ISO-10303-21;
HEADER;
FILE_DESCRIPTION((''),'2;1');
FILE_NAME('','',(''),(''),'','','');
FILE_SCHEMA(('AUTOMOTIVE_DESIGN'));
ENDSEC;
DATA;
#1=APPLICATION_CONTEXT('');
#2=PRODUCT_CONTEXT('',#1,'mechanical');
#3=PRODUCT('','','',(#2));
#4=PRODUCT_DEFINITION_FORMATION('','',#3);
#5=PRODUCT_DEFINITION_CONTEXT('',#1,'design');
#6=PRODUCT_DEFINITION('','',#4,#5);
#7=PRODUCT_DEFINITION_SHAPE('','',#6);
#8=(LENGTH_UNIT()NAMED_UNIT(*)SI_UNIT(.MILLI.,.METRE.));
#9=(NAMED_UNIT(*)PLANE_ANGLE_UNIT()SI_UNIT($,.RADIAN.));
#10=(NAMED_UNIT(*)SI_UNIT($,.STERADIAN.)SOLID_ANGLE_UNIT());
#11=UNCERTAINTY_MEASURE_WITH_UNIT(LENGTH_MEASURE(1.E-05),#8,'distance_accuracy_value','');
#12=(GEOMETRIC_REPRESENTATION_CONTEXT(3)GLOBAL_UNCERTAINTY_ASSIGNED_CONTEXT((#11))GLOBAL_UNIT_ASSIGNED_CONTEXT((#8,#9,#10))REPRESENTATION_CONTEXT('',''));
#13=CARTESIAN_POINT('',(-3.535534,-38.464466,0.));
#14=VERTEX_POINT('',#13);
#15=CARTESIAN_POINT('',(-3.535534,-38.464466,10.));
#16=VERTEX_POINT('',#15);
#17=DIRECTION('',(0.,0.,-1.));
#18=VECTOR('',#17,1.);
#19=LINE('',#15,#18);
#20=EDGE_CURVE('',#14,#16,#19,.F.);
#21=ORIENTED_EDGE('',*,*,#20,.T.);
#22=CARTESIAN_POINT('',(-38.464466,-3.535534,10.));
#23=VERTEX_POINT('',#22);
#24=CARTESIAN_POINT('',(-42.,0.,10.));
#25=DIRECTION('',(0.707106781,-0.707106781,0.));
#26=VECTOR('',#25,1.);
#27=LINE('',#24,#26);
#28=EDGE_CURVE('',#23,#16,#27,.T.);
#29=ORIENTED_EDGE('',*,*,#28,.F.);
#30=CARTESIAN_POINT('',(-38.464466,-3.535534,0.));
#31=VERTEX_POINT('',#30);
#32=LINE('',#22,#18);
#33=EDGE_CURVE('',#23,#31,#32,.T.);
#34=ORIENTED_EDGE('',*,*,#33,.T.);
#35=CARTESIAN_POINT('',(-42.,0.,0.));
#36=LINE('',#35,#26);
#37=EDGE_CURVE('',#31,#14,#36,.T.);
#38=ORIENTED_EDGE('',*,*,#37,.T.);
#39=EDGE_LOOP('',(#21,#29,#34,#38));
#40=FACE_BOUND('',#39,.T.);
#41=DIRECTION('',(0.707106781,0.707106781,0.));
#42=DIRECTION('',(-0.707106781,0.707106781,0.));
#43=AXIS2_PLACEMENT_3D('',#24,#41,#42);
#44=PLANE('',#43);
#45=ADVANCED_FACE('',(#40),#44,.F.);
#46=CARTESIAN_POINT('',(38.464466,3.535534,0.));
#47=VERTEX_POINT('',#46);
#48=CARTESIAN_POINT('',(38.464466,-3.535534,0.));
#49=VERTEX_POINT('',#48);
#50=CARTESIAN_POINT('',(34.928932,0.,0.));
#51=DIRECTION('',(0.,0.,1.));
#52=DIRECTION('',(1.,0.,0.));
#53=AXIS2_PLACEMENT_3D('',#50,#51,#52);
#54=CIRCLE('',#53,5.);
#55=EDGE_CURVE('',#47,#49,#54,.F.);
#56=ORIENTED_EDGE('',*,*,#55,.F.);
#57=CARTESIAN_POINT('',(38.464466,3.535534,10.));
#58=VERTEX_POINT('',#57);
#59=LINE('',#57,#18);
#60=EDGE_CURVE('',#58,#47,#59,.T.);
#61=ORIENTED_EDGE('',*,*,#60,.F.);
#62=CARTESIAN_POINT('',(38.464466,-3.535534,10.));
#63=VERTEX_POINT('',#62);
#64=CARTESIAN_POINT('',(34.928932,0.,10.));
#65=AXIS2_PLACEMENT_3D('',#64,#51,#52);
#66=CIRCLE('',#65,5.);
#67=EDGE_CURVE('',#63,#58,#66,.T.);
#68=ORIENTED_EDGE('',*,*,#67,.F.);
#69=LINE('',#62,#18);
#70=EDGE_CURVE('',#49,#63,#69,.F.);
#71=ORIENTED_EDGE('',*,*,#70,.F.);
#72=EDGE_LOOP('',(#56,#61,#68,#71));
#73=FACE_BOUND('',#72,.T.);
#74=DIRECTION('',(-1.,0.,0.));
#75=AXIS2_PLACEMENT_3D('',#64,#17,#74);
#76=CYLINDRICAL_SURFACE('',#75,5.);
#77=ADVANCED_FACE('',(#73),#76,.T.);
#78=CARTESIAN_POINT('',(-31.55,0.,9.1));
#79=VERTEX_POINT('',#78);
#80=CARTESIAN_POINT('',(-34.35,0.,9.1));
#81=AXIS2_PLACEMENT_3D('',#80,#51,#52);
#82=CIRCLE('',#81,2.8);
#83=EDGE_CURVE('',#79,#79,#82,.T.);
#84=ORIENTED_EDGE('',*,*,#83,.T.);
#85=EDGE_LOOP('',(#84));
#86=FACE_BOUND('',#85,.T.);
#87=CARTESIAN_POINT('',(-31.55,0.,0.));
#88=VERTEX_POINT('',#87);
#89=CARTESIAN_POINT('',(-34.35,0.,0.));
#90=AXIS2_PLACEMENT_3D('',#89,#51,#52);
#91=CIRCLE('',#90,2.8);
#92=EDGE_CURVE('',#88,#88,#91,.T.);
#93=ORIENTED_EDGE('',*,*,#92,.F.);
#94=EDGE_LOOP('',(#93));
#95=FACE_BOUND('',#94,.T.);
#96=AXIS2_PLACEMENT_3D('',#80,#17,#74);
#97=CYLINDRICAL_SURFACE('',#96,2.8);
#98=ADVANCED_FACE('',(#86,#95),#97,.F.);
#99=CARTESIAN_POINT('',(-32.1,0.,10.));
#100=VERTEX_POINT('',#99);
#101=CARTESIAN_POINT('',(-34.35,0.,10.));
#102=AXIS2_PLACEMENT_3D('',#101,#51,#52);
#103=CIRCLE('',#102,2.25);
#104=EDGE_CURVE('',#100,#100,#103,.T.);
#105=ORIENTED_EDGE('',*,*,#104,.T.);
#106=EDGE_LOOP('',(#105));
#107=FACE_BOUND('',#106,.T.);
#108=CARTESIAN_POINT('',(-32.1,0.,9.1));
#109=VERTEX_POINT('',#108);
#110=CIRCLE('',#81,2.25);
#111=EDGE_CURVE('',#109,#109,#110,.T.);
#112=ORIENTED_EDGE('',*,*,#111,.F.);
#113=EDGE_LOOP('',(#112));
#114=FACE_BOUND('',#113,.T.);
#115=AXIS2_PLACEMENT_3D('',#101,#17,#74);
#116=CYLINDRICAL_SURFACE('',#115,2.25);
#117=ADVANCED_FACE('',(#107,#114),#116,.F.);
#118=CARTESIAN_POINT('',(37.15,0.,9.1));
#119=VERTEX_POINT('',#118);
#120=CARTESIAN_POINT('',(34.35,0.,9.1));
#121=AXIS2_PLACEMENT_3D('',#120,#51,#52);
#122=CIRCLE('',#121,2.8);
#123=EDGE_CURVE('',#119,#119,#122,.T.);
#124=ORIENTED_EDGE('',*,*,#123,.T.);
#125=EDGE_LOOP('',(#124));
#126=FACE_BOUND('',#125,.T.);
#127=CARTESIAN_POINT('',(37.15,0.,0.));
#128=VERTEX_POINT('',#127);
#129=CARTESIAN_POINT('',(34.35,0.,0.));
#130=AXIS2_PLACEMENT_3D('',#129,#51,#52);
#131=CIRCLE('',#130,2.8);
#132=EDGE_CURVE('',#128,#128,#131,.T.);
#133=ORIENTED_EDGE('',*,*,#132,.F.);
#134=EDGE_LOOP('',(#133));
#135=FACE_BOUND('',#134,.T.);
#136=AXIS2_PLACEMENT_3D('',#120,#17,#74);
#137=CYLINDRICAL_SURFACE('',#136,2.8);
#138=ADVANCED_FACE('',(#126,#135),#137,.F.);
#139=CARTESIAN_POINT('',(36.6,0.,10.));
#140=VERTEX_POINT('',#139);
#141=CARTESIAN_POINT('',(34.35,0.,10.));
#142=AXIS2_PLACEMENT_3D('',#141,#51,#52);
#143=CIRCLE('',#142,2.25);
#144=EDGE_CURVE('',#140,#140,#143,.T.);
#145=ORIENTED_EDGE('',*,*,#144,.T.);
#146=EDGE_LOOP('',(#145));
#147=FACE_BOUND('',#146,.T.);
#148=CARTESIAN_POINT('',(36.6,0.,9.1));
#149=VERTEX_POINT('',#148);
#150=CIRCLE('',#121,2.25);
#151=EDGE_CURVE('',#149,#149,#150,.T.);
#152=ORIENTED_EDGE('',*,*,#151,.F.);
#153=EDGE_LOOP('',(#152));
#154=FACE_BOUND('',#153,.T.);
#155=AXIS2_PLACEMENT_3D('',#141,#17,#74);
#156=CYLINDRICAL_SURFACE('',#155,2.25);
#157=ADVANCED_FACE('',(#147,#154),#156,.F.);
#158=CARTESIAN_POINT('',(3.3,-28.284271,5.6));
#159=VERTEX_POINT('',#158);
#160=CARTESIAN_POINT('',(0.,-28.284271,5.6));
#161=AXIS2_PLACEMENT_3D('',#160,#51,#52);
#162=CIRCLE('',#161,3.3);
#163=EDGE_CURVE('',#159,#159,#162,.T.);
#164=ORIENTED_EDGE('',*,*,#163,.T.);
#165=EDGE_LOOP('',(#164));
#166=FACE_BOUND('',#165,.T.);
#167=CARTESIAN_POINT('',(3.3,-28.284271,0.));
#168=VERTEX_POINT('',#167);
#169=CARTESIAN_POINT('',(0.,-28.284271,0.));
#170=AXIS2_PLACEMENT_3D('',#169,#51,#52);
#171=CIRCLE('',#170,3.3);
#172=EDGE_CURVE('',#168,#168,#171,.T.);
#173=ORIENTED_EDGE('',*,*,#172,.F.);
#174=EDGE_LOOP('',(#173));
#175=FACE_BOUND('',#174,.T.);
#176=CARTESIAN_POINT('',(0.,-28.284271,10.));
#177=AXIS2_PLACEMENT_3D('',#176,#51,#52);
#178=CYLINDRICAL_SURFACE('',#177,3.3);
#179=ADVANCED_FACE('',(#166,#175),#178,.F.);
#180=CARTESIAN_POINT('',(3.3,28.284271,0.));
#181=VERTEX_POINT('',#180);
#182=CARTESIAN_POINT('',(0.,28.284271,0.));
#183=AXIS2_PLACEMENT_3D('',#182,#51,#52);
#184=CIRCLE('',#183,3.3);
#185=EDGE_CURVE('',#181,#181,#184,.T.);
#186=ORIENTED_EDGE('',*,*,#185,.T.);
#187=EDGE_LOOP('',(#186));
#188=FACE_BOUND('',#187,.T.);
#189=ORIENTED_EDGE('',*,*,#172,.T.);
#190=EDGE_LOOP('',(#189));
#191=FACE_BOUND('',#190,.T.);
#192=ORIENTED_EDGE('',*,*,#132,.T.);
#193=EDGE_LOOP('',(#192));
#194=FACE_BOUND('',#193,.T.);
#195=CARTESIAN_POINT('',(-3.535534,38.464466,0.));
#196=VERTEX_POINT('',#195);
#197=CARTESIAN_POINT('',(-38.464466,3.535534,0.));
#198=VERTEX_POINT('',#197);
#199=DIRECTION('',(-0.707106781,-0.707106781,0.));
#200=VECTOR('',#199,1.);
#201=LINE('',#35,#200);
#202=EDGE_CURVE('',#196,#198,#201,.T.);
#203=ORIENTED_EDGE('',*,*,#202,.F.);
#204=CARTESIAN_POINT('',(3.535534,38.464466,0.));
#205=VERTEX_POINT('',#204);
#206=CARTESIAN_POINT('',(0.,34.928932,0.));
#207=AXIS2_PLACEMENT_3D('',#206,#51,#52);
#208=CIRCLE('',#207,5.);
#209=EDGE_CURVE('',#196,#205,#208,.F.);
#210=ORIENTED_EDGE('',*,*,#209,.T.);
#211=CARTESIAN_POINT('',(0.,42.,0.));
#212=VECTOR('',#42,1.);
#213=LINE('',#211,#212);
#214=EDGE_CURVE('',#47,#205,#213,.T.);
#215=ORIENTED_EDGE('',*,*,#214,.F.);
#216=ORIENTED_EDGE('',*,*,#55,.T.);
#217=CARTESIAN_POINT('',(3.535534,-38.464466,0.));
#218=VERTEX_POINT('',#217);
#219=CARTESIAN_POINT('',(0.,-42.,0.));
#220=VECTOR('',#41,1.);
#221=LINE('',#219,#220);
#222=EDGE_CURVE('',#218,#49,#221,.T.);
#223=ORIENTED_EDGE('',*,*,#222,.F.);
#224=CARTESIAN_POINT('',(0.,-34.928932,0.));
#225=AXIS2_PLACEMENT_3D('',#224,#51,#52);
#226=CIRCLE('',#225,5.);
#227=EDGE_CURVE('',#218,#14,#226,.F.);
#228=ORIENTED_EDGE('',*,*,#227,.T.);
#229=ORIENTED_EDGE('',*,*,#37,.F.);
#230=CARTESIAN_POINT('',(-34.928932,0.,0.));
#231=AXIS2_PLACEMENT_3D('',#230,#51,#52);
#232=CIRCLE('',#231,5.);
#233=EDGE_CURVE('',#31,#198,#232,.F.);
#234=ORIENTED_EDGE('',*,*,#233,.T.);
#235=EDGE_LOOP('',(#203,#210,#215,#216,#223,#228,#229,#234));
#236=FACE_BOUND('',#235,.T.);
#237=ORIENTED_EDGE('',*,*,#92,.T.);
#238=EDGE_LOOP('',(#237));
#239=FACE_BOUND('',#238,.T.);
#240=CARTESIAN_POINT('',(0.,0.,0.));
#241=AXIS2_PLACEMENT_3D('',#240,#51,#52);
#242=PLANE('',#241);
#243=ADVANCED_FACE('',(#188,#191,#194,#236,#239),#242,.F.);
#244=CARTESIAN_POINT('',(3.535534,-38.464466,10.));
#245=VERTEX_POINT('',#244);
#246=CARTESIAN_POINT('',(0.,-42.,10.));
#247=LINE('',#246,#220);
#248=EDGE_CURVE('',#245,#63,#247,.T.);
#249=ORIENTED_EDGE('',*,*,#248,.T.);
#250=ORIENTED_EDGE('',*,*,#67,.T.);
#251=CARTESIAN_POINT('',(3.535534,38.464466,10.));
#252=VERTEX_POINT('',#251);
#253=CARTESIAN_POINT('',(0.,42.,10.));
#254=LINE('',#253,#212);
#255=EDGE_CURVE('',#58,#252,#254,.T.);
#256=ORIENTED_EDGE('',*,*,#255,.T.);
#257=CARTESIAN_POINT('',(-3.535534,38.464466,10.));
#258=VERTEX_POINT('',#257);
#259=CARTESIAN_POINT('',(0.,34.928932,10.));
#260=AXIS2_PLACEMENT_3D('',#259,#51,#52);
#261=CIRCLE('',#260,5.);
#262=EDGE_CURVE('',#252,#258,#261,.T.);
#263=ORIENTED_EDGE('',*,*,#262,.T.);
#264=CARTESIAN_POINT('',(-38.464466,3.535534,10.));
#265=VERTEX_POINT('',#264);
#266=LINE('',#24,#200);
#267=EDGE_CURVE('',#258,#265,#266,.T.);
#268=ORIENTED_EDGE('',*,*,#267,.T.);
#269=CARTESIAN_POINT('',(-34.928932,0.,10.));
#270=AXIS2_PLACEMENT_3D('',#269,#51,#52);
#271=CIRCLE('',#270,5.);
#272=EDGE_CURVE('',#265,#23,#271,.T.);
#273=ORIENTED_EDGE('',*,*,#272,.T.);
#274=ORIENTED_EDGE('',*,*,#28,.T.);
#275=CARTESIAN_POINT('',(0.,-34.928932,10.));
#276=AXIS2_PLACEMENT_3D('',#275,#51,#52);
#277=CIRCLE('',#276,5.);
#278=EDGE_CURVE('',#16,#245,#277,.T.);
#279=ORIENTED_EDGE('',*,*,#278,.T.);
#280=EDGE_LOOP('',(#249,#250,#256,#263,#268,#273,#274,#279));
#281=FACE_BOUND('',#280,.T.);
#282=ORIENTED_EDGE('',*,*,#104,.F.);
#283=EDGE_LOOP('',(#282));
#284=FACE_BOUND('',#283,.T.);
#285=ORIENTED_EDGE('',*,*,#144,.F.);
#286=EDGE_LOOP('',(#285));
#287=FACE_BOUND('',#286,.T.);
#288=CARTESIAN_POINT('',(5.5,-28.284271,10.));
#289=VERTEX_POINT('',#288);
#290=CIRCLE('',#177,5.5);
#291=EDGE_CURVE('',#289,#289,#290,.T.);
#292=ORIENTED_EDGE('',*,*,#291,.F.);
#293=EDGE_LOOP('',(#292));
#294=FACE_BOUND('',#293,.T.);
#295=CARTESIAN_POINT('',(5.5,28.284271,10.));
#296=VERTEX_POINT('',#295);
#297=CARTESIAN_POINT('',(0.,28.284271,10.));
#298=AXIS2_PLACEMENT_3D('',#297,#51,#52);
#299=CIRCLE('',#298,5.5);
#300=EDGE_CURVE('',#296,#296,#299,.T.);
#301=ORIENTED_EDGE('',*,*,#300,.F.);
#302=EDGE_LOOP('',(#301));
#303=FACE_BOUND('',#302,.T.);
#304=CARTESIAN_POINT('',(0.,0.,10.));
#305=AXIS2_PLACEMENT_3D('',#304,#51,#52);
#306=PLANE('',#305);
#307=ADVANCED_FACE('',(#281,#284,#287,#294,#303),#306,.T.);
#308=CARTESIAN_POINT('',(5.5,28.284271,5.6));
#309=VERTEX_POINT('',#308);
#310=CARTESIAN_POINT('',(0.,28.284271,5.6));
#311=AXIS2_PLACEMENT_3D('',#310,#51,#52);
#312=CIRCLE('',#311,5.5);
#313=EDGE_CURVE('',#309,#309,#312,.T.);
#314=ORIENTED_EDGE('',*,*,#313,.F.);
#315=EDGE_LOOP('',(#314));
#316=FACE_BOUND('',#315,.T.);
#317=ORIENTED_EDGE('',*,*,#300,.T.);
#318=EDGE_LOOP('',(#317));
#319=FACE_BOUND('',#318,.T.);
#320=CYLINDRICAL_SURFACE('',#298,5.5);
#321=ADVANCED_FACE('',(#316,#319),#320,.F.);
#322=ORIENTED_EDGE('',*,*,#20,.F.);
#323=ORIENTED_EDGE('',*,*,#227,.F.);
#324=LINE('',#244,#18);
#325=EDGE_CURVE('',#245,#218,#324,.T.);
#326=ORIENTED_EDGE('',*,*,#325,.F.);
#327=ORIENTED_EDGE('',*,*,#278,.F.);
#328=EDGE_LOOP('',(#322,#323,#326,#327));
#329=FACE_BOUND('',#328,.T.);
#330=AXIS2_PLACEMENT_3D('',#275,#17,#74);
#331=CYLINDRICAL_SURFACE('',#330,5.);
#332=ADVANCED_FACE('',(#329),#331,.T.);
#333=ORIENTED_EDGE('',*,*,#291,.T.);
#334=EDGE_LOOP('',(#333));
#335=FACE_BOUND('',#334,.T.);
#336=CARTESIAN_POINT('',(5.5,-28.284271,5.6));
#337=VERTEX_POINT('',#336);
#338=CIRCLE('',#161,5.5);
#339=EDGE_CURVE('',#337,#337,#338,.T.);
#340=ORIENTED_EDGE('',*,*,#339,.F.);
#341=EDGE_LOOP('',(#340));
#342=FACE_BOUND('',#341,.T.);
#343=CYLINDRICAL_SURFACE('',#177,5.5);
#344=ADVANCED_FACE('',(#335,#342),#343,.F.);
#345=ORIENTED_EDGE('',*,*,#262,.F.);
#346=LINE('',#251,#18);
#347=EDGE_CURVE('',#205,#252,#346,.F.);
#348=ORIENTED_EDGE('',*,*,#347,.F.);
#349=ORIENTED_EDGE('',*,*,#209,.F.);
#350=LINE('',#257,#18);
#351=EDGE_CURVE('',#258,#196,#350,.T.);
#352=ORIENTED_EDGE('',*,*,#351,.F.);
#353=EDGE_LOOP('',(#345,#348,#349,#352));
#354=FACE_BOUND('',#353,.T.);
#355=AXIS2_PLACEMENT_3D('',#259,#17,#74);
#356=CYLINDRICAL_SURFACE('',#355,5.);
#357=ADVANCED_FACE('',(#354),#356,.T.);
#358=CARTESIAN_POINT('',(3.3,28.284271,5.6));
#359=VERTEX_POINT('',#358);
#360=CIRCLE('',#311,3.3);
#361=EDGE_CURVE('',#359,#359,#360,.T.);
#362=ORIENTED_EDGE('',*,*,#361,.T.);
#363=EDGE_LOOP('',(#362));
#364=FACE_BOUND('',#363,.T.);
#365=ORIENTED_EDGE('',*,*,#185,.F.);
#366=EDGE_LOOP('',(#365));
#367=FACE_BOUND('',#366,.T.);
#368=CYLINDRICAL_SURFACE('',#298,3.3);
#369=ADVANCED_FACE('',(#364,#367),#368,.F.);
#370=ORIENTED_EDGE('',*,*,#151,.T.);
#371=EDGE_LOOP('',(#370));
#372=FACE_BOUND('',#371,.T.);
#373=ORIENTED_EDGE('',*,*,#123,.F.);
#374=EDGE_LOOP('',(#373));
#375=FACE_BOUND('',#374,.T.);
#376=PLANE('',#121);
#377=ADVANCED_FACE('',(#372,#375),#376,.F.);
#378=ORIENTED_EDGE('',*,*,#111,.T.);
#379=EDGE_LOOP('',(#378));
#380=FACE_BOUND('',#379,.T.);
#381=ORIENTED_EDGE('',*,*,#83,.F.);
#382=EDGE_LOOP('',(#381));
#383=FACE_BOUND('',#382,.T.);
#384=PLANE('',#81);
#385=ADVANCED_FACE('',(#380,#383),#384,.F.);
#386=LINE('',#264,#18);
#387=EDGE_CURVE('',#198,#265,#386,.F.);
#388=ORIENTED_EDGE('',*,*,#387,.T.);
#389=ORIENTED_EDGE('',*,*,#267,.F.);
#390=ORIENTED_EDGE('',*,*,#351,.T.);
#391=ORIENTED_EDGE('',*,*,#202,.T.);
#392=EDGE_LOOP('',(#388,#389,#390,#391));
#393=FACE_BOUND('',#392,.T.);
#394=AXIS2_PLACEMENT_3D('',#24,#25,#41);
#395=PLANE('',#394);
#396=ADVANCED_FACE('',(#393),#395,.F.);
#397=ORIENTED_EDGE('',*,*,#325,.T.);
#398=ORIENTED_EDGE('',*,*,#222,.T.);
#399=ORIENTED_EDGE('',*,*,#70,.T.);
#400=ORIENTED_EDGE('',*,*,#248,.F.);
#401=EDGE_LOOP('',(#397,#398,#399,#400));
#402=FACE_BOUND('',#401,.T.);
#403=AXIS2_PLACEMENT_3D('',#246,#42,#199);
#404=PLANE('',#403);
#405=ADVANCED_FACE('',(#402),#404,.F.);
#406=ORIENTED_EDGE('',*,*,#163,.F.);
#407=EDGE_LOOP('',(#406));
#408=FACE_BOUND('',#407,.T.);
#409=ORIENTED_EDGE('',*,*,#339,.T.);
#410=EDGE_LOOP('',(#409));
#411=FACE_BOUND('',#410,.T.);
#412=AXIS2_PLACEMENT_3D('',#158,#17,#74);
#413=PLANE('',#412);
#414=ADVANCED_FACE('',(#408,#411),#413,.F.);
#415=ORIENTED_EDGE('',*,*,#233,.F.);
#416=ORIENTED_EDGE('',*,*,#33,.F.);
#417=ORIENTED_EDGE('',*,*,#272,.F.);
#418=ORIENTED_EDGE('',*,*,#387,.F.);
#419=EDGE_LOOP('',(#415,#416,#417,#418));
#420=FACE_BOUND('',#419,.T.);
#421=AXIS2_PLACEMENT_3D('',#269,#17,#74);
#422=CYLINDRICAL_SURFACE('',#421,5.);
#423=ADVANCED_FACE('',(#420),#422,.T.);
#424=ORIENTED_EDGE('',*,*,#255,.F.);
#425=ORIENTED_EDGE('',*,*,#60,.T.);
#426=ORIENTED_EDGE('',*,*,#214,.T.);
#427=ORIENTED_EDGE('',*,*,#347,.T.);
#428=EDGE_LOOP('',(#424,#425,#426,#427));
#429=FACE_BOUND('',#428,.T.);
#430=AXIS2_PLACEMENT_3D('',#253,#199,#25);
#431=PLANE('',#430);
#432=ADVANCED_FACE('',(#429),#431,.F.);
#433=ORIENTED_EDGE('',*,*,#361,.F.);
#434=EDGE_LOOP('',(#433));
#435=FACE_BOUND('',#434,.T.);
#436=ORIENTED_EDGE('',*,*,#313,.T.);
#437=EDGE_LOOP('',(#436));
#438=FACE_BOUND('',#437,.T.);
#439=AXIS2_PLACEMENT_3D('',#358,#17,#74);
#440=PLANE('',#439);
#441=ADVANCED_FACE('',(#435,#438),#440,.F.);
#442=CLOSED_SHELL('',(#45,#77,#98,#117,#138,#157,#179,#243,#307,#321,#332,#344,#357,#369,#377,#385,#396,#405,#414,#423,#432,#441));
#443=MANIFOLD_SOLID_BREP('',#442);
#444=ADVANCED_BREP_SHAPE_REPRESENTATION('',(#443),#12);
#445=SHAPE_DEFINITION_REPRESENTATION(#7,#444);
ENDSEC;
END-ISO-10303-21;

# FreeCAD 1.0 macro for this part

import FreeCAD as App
import Part
import Sketcher

V = App.Vector
Q = App.Units.Quantity


def edges_at(feature, points):
    """Names of the edges that pass closest to the given points."""
    edges = feature.Shape.Edges
    near = lambda p: min(range(len(edges)), key=lambda i: edges[i].distToShape(Part.Vertex(*p))[0])
    return sorted({f"Edge{near(p) + 1}" for p in points})

doc = App.newDocument("Part")
params = doc.addObject("Spreadsheet::Sheet", "Params")
for row, (alias, value) in enumerate([
    ("sketch1_diameter", "4.5 mm"),
    ("pad1_length", "10 mm"),
    ("sketch2_diameter", "5.6 mm"),
    ("pocket1_length", "9.1 mm"),
    ("sketch3_diameter", "6.6 mm"),
    ("hole_diameter", "6.6 mm"),
    ("hole_cbore_diameter", "11 mm"),
    ("hole_cbore_depth", "4.4 mm"),
    ("sketch4_diameter", "6.6 mm"),
    ("hole2_diameter", "6.6 mm"),
    ("hole2_cbore_diameter", "11 mm"),
    ("hole2_cbore_depth", "4.4 mm"),
    ("fillet_radius", "5 mm"),
], start=1):
    params.set(f"A{row}", alias)
    params.set(f"B{row}", "=" + value)
    params.setAlias(f"B{row}", alias)

body = doc.addObject("PartDesign::Body", "Body")

# Sketch on XY plane
sketch1 = body.newObject("Sketcher::SketchObject", "Sketch")
sketch1.AttachmentSupport = (doc.getObject("XY_Plane"), [""])
sketch1.MapMode = "FlatFace"
sketch1.addGeometry(Part.LineSegment(V(0, 42, 0), V(-42, 0, 0)), False)
sketch1.addGeometry(Part.LineSegment(V(-42, 0, 0), V(0, -42, 0)), False)
sketch1.addGeometry(Part.LineSegment(V(0, -42, 0), V(42, 0, 0)), False)
sketch1.addGeometry(Part.LineSegment(V(42, 0, 0), V(0, 42, 0)), False)
sketch1.addGeometry(Part.Circle(V(34.4, 0, 0), V(0, 0, 1), 2.2), False)
sketch1.addGeometry(Part.Circle(V(-34.4, 0, 0), V(0, 0, 1), 2.2), False)
sketch1.addConstraint(Sketcher.Constraint("Coincident", 0, 2, 1, 1))
sketch1.addConstraint(Sketcher.Constraint("Coincident", 1, 2, 2, 1))
sketch1.addConstraint(Sketcher.Constraint("Coincident", 2, 2, 3, 1))
sketch1.addConstraint(Sketcher.Constraint("Coincident", 3, 2, 0, 1))
sketch1.addConstraint(Sketcher.Constraint("Equal", 4, 5))
sketch1.addConstraint(Sketcher.Constraint("Symmetric", 4, 3, 5, 3, -1, 1))
sketch1.addConstraint(Sketcher.Constraint("Symmetric", 0, 2, 2, 2, -1, 1))
sketch1.addConstraint(Sketcher.Constraint("Symmetric", 1, 2, 3, 2, -1, 1))
sketch1.addConstraint(Sketcher.Constraint("PointOnObject", 4, 3, -1))
sketch1.addConstraint(Sketcher.Constraint("PointOnObject", 0, 2, -1))
sketch1.addConstraint(Sketcher.Constraint("PointOnObject", 1, 2, -2))
sketch1.addConstraint(Sketcher.Constraint("Perpendicular", 0, 1))
sketch1.addConstraint(Sketcher.Constraint("Diameter", 4, Q("4.5 mm")))
sketch1.addConstraint(Sketcher.Constraint("DistanceX", 0, 2, -1, 1, Q("42 mm")))
sketch1.addConstraint(Sketcher.Constraint("DistanceX", 5, 3, 4, 3, Q("68.7 mm")))
sketch1.setExpression("Constraints[12]", "Params.sketch1_diameter")
pad1 = body.newObject("PartDesign::Pad", "Pad")
pad1.Profile = sketch1
pad1.setExpression("Length", "Params.pad1_length")

# Sketch on XY plane
sketch2 = body.newObject("Sketcher::SketchObject", "Sketch001")
sketch2.AttachmentSupport = (doc.getObject("XY_Plane"), [""])
sketch2.MapMode = "FlatFace"
sketch2.addGeometry(Part.Circle(V(34.4, 0, 0), V(0, 0, 1), 2.8), False)
sketch2.addGeometry(Part.Circle(V(-34.4, 0, 0), V(0, 0, 1), 2.8), False)
sketch2.addConstraint(Sketcher.Constraint("Equal", 0, 1))
sketch2.addConstraint(Sketcher.Constraint("Symmetric", 0, 3, 1, 3, -1, 1))
sketch2.addConstraint(Sketcher.Constraint("PointOnObject", 0, 3, -1))
sketch2.addConstraint(Sketcher.Constraint("Diameter", 0, Q("5.6 mm")))
sketch2.addConstraint(Sketcher.Constraint("DistanceX", 1, 3, 0, 3, Q("68.7 mm")))
sketch2.setExpression("Constraints[3]", "Params.sketch2_diameter")
pocket1 = body.newObject("PartDesign::Pocket", "Pocket")
pocket1.Profile = sketch2
pocket1.setExpression("Length", "Params.pocket1_length")
pocket1.Reversed = True

# Sketch on XY plane
sketch3 = body.newObject("Sketcher::SketchObject", "Sketch002")
sketch3.AttachmentSupport = (doc.getObject("XY_Plane"), [""])
sketch3.MapMode = "FlatFace"
sketch3.AttachmentOffset = App.Placement(V(0, 0, 10), App.Rotation())
sketch3.addGeometry(Part.Circle(V(0, 28.3, 0), V(0, 0, 1), 3.3), False)
sketch3.addGeometry(Part.Circle(V(0, -28.3, 0), V(0, 0, 1), 3.3), False)
sketch3.addConstraint(Sketcher.Constraint("Equal", 0, 1))
sketch3.addConstraint(Sketcher.Constraint("Symmetric", 0, 3, 1, 3, -1, 1))
sketch3.addConstraint(Sketcher.Constraint("PointOnObject", 0, 3, -2))
sketch3.addConstraint(Sketcher.Constraint("Diameter", 0, Q("6.6 mm")))
sketch3.addConstraint(Sketcher.Constraint("DistanceY", -1, 1, 0, 3, Q("28.284271 mm")))
sketch3.setExpression("Constraints[3]", "Params.sketch3_diameter")
doc.recompute()
hole = body.newObject("PartDesign::Hole", "Hole")
hole.Profile = sketch3
hole.ThreadType = "None"
hole.setExpression("Diameter", "Params.hole_diameter")
hole.DepthType = "ThroughAll"
hole.HoleCutType = "Counterbore"
hole.setExpression("HoleCutDiameter", "Params.hole_cbore_diameter")
hole.setExpression("HoleCutDepth", "Params.hole_cbore_depth")

# Sketch on XY plane
sketch4 = body.newObject("Sketcher::SketchObject", "Sketch003")
sketch4.AttachmentSupport = (doc.getObject("XY_Plane"), [""])
sketch4.MapMode = "FlatFace"
sketch4.addGeometry(Part.Circle(V(55.3, 21, 0), V(0, 0, 1), 3.3), False)
sketch4.addConstraint(Sketcher.Constraint("Diameter", 0, Q("6.6 mm")))
sketch4.addConstraint(Sketcher.Constraint("DistanceX", -1, 1, 0, 3, Q("55.283572 mm")))
sketch4.addConstraint(Sketcher.Constraint("DistanceY", -1, 1, 0, 3, Q("20.980489 mm")))
sketch4.setExpression("Constraints[0]", "Params.sketch4_diameter")
doc.recompute()
hole2 = body.newObject("PartDesign::Hole", "Hole001")
hole2.Profile = sketch4
hole2.ThreadType = "None"
hole2.setExpression("Diameter", "Params.hole2_diameter")
hole2.DepthType = "ThroughAll"
hole2.HoleCutType = "Counterbore"
hole2.setExpression("HoleCutDiameter", "Params.hole2_cbore_diameter")
hole2.setExpression("HoleCutDepth", "Params.hole2_cbore_depth")
doc.recompute()

fillet = body.newObject("PartDesign::Fillet", "Fillet")
fillet.Base = (hole2, edges_at(hole2, [
    (-42, 0, 5),
    (0, 42, 5),
    (42, 0, 5),
    (0, -42, 5),
]))
fillet.setExpression("Radius", "Params.fillet_radius")

doc.recompute()
